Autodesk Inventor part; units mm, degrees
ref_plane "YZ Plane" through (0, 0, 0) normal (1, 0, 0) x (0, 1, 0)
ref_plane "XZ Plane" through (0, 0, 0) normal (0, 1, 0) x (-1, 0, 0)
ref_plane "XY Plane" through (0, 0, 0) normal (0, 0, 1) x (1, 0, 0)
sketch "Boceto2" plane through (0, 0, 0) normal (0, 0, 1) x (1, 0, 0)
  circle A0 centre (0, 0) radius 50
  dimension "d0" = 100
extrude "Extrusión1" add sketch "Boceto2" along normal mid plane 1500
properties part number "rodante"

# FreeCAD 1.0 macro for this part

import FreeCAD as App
import Part
import Sketcher

V = App.Vector

doc = App.newDocument("Part")
body = doc.addObject("PartDesign::Body", "Body")

# Sketch on XY plane
sketch1 = doc.addObject("Sketcher::SketchObject", "Sketch")
body.addObject(sketch1)
sketch1.AttachmentSupport = (doc.XY_Plane, [""])
sketch1.MapMode = "FlatFace"
sketch1.addGeometry(Part.Circle(V(0, 0, 0), V(0, 0, 1), 50), False)
sketch1.addConstraint(Sketcher.Constraint("Coincident", 0, 3, -1, 1))
sketch1.addConstraint(Sketcher.Constraint("Diameter", 0, 100.0))
pad1 = doc.addObject("PartDesign::Pad", "Pad")
body.addObject(pad1)
pad1.Profile = sketch1
pad1.Length = 1500
pad1.Midplane = True

doc.recompute()
